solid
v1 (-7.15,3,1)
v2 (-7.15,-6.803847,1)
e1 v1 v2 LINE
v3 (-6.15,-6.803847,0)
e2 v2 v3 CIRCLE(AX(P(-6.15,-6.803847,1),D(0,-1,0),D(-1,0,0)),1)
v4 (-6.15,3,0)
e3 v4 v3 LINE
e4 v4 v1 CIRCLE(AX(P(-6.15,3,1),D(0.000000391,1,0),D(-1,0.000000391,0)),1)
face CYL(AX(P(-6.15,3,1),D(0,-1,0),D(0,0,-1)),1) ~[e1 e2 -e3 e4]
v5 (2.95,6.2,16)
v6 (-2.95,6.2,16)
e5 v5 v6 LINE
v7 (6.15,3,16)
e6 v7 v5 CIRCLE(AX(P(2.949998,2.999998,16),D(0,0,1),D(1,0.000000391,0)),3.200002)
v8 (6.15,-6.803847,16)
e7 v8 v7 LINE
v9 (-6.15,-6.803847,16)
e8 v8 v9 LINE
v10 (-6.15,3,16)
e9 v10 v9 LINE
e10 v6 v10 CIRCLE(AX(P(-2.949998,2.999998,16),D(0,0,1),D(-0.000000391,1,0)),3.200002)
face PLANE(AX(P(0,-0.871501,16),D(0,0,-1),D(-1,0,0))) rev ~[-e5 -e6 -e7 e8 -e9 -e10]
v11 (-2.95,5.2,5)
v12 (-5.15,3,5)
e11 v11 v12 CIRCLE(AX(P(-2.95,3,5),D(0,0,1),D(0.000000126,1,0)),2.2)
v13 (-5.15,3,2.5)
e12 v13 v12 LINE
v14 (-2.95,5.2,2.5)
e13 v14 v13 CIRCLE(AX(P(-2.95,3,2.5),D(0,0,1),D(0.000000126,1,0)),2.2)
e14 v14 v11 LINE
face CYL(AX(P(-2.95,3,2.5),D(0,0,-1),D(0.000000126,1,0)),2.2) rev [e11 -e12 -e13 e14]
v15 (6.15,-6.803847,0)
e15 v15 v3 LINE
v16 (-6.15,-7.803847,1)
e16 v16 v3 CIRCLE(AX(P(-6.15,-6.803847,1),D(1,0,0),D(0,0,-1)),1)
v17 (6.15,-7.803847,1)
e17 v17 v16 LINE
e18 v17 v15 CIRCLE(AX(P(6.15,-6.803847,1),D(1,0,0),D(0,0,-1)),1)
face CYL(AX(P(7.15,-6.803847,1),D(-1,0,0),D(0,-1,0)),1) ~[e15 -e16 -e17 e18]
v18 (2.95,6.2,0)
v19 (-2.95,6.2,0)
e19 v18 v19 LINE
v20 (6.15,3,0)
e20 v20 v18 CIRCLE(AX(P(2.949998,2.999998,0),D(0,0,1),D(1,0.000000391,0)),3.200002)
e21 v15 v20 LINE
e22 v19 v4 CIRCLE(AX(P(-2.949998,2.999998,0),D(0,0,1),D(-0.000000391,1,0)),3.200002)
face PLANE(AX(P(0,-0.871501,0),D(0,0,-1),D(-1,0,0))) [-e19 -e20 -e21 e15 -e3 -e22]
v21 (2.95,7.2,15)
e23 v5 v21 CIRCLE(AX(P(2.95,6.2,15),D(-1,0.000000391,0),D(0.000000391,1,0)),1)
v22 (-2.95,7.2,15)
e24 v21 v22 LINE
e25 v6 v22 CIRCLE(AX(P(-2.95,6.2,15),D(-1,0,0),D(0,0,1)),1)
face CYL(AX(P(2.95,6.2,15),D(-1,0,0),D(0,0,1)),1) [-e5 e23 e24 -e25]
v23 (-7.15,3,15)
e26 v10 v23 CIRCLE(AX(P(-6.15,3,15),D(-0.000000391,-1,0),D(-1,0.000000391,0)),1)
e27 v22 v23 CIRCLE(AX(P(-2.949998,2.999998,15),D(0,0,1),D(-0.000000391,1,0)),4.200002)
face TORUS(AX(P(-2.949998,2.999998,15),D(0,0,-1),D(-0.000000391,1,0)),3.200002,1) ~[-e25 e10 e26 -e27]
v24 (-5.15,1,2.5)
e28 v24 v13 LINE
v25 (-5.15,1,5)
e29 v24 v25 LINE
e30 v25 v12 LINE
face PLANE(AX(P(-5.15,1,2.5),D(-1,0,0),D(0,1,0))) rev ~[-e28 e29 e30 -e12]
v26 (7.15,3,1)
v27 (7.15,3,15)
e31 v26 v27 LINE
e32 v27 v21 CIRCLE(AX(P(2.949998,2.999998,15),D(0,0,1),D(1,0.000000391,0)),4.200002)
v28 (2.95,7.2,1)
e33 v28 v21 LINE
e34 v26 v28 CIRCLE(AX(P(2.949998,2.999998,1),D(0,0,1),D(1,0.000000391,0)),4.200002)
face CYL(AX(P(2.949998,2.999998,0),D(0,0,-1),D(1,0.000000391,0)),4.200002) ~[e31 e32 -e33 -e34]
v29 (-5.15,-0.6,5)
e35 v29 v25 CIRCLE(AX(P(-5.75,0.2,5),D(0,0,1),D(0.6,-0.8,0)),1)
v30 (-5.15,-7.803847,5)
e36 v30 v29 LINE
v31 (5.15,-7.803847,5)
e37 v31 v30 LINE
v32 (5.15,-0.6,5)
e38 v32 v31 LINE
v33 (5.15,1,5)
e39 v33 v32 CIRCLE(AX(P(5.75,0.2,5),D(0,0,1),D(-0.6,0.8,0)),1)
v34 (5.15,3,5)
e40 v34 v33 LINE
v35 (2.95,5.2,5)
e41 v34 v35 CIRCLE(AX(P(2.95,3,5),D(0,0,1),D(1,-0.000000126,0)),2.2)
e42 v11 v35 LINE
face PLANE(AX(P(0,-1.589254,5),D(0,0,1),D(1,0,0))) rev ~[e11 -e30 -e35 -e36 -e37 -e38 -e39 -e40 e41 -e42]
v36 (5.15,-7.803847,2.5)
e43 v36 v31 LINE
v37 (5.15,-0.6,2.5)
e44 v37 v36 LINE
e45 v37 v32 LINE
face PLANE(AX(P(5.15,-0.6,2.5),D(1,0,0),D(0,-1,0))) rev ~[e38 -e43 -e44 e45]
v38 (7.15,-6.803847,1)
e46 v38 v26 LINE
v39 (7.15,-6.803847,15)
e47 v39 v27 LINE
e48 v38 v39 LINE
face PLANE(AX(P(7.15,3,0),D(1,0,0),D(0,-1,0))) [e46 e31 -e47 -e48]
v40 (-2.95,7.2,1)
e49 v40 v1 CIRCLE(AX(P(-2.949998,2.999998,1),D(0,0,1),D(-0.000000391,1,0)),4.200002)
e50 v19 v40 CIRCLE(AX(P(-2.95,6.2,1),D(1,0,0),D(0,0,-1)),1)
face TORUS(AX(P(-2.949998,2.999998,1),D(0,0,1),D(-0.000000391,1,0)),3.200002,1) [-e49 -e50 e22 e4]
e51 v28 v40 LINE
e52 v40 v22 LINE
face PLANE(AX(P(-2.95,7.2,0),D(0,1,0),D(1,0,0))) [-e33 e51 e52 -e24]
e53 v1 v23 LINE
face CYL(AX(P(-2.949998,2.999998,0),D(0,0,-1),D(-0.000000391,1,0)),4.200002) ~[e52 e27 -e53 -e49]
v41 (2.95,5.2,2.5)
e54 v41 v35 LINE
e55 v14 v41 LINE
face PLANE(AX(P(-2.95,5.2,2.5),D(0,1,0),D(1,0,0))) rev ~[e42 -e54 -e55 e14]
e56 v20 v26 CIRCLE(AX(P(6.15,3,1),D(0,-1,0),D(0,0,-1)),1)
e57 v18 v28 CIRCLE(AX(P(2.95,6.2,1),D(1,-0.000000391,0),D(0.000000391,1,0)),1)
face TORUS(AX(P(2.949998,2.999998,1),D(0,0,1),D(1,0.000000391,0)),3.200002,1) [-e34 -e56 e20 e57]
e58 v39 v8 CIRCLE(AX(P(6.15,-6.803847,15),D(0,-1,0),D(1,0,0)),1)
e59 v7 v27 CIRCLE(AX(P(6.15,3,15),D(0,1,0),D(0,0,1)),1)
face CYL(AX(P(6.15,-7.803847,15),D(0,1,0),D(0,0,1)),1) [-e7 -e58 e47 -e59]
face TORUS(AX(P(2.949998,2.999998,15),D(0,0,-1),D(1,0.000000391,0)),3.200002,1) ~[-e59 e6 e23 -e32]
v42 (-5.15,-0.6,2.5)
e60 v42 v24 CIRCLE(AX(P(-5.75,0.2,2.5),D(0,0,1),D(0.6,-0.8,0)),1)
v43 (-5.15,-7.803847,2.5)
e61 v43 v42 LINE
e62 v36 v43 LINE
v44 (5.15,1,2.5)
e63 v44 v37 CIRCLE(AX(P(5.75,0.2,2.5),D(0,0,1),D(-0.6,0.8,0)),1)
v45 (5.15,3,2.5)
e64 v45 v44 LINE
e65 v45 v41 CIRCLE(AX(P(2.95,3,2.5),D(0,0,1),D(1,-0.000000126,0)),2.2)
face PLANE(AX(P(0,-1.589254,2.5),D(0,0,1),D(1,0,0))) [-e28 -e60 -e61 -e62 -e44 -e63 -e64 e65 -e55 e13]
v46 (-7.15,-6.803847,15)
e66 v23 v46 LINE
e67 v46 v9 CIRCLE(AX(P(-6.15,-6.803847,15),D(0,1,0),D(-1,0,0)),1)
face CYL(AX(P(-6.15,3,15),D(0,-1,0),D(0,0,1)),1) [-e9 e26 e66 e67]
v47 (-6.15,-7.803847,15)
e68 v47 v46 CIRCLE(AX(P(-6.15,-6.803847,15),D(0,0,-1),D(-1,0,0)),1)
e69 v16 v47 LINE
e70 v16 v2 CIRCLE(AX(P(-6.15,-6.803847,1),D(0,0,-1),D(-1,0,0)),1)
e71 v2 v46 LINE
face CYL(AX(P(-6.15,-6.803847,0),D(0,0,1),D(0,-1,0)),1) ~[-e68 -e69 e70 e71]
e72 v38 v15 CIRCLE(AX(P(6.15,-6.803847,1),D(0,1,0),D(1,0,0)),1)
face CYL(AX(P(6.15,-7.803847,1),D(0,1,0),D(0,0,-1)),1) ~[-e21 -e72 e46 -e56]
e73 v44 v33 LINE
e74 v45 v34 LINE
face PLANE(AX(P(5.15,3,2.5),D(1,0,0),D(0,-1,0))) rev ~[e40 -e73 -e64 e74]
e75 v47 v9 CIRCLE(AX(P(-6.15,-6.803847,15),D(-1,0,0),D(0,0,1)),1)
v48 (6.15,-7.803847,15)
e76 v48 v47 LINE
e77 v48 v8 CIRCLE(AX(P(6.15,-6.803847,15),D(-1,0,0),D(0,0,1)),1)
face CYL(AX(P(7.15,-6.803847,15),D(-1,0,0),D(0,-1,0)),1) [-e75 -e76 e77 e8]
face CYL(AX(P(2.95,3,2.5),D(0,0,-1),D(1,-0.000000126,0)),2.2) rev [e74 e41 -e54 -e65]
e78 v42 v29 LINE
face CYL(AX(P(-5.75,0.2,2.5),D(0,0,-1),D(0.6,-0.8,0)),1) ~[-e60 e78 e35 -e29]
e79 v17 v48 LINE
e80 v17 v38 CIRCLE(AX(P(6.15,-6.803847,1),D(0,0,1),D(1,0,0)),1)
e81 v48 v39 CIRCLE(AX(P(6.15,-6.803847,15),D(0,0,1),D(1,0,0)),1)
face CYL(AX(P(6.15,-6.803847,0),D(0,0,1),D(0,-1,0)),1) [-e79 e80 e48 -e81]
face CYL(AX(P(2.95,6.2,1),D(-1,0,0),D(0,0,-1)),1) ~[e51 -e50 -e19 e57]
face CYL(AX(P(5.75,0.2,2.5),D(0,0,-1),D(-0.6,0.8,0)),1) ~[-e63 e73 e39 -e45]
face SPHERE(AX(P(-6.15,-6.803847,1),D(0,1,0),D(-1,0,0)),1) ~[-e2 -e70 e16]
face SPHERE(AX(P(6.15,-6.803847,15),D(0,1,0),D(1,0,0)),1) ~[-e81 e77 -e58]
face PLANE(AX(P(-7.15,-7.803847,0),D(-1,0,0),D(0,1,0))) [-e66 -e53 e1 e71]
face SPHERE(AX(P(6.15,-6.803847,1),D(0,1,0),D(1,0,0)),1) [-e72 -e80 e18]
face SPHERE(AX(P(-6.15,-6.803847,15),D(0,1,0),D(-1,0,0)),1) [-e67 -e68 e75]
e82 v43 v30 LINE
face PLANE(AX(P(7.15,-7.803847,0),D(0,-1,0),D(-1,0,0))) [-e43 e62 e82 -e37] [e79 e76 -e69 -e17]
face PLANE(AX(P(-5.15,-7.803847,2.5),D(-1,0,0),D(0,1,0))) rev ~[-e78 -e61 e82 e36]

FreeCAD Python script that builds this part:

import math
import FreeCAD as App
import Part
import Sketcher
Q = App.Units.Quantity


def edges_at(feature, points):
    """Names of the edges that pass closest to the given points."""
    edges = feature.Shape.Edges
    near = lambda p: min(range(len(edges)), key=lambda i: edges[i].distToShape(Part.Vertex(*p))[0])
    return sorted({f"Edge{near(p) + 1}" for p in points})

doc = App.newDocument("Part")
body = doc.addObject("PartDesign::Body", "Body")

sketch1 = body.newObject("Sketcher::SketchObject", "Sketch")
sketch1.AttachmentSupport = (doc.getObject("XY_Plane"), [""])
sketch1.MapMode = "FlatFace"
sketch1.addGeometry([
    Part.LineSegment(App.Vector(-7.2, -7.8, 0), App.Vector(7.2, -7.8, 0)),
    Part.LineSegment(App.Vector(7.2, -7.8, 0), App.Vector(7.2, 3, 0)),
    Part.ArcOfCircle(Part.Circle(App.Vector(2.9, 3, 0), App.Vector(0, 0, 1), 4.2), math.radians(0), math.radians(90)),
    Part.LineSegment(App.Vector(3, 7.2, 0), App.Vector(-3, 7.2, 0)),
    Part.ArcOfCircle(Part.Circle(App.Vector(-2.9, 3, 0), App.Vector(0, 0, 1), 4.2), math.radians(90), math.radians(180)),
    Part.LineSegment(App.Vector(-7.2, 3, 0), App.Vector(-7.2, -7.8, 0)),
], False)
sketch1.addConstraint([
    Sketcher.Constraint("Coincident", 0, 2, 1, 1),
    Sketcher.Constraint("Tangent", 1, 2, 2, 1),
    Sketcher.Constraint("Tangent", 2, 2, 3, 1),
    Sketcher.Constraint("Tangent", 3, 2, 4, 1),
    Sketcher.Constraint("Tangent", 4, 2, 5, 1),
    Sketcher.Constraint("Coincident", 5, 2, 0, 1),
    Sketcher.Constraint("Horizontal", 0),
    Sketcher.Constraint("Vertical", 1),
    Sketcher.Constraint("Horizontal", 3),
    Sketcher.Constraint("Vertical", 5),
    Sketcher.Constraint("Equal", 2, 4),
    Sketcher.Constraint("Radius", 2, Q("4.200002 mm")),
    Sketcher.Constraint("DistanceX", 0, 1, 0, 2, Q("14.3 mm")),
    Sketcher.Constraint("DistanceY", -1, 1, 2, 3, Q("2.999998 mm")),
    Sketcher.Constraint("DistanceX", -1, 1, 2, 3, Q("2.949998 mm")),
    Sketcher.Constraint("DistanceY", 1, 1, 1, 2, Q("10.803847 mm")),
])
pad1 = body.newObject("PartDesign::Pad", "Pad")
pad1.Profile = sketch1
pad1.Length = 16

sketch2 = body.newObject("Sketcher::SketchObject", "Sketch001")
sketch2.AttachmentSupport = (doc.getObject("XY_Plane"), [""])
sketch2.MapMode = "FlatFace"
sketch2.AttachmentOffset = App.Placement(App.Vector(0, 0, 2.5), App.Rotation())
sketch2.addGeometry([
    Part.ArcOfCircle(Part.Circle(App.Vector(-3, 3, 0), App.Vector(0, 0, 1), 2.2), math.radians(90), math.radians(180)),
    Part.LineSegment(App.Vector(-5.2, 3, 0), App.Vector(-5.2, 1, 0)),
    Part.ArcOfCircle(Part.Circle(App.Vector(-5.8, 0.2, 0), App.Vector(0, 0, 1), 1), math.radians(-53), math.radians(53)),
    Part.LineSegment(App.Vector(-5.2, -0.6, 0), App.Vector(-5.2, -7.8, 0)),
    Part.LineSegment(App.Vector(-5.2, -7.8, 0), App.Vector(5.2, -7.8, 0)),
    Part.LineSegment(App.Vector(5.2, -7.8, 0), App.Vector(5.2, -0.6, 0)),
    Part.ArcOfCircle(Part.Circle(App.Vector(5.8, 0.2, 0), App.Vector(0, 0, 1), 1), math.radians(127), math.radians(233)),
    Part.LineSegment(App.Vector(5.2, 1, 0), App.Vector(5.2, 3, 0)),
    Part.ArcOfCircle(Part.Circle(App.Vector(3, 3, 0), App.Vector(0, 0, 1), 2.2), math.radians(0), math.radians(90)),
    Part.LineSegment(App.Vector(3, 5.2, 0), App.Vector(-3, 5.2, 0)),
], False)
sketch2.addConstraint([
    Sketcher.Constraint("Tangent", 0, 2, 1, 1),
    Sketcher.Constraint("Coincident", 1, 2, 2, 2),
    Sketcher.Constraint("Coincident", 2, 1, 3, 1),
    Sketcher.Constraint("Coincident", 3, 2, 4, 1),
    Sketcher.Constraint("Coincident", 4, 2, 5, 1),
    Sketcher.Constraint("Coincident", 5, 2, 6, 2),
    Sketcher.Constraint("Coincident", 6, 1, 7, 1),
    Sketcher.Constraint("Tangent", 7, 2, 8, 1),
    Sketcher.Constraint("Tangent", 8, 2, 9, 1),
    Sketcher.Constraint("Tangent", 9, 2, 0, 1),
    Sketcher.Constraint("Vertical", 1),
    Sketcher.Constraint("Vertical", 3),
    Sketcher.Constraint("Horizontal", 4),
    Sketcher.Constraint("Vertical", 5),
    Sketcher.Constraint("Vertical", 7),
    Sketcher.Constraint("Horizontal", 9),
    Sketcher.Constraint("Equal", 2, 6),
    Sketcher.Constraint("Equal", 0, 8),
    Sketcher.Constraint("Symmetric", 2, 3, 6, 3, -2),
    Sketcher.Constraint("Horizontal", 2, 1, 5, 2),
    Sketcher.Constraint("Horizontal", 1, 2, 6, 1),
    Sketcher.Constraint("Vertical", 1, 2, 2, 1),
    Sketcher.Constraint("Radius", 2, Q("1 mm")),
    Sketcher.Constraint("Radius", 0, Q("2.2 mm")),
    Sketcher.Constraint("DistanceY", 1, 2, 1, 1, Q("2 mm")),
    Sketcher.Constraint("DistanceX", 4, 1, 4, 2, Q("10.3 mm")),
    Sketcher.Constraint("DistanceY", -1, 1, 0, 3, Q("3 mm")),
    Sketcher.Constraint("DistanceY", 6, 3, 8, 2, Q("5 mm")),
    Sketcher.Constraint("DistanceY", 3, 2, 3, 1, Q("7.203847 mm")),
])
pocket1 = body.newObject("PartDesign::Pocket", "Pocket")
pocket1.Profile = sketch2
pocket1.Length = 2.5
pocket1.Reversed = True
doc.recompute()

fillet = body.newObject("PartDesign::Fillet", "Fillet")
fillet.Base = (pocket1, edges_at(pocket1, [
    (-5.92, 5.97, 0),
    (-5.92, 5.97, 16),
    (-7.15, -7.804, 8),
    (7.15, -7.804, 8),
    (0, -7.804, 16),
    (0, -7.804, 0),
]))
fillet.Radius = 1

doc.recompute()
